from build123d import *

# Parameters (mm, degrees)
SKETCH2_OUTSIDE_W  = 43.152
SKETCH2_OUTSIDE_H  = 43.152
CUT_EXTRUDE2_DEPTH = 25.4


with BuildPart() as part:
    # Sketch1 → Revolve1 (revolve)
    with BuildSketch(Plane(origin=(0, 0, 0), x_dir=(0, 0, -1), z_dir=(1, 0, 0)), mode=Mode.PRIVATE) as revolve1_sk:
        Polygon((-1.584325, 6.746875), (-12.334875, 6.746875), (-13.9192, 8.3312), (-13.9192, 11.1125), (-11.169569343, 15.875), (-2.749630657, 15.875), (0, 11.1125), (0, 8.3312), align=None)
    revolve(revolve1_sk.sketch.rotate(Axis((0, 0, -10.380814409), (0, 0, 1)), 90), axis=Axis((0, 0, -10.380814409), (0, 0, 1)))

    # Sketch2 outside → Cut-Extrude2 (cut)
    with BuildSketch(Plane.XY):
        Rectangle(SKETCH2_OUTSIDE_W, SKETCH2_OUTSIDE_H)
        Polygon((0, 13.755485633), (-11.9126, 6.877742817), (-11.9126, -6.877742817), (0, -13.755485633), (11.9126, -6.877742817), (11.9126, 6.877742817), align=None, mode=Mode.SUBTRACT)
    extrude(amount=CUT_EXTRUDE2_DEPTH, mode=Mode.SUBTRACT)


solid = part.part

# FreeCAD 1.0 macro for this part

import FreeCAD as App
import Part
import Sketcher
Q = App.Units.Quantity


def add_polygon(sketch, points):
    """Adds a closed chain of lines whose ends are joined by coincident constraints."""
    first, n = sketch.GeometryCount, len(points)
    for a, b in zip(points, points[1:] + points[:1]):
        sketch.addGeometry(Part.LineSegment(App.Vector(*a, 0), App.Vector(*b, 0)), False)
    for i in range(n):
        sketch.addConstraint(Sketcher.Constraint("Coincident", first + i, 2, first + (i + 1) % n, 1))

doc = App.newDocument("Part")
params = doc.addObject("Spreadsheet::Sheet", "Params")
for row, (alias, value) in enumerate([
    ("revolution_angle", "360 deg"),
    ("pocket1_length", "1 in"),
], start=1):
    params.set(f"A{row}", alias)
    params.set(f"B{row}", "=" + value)
    params.setAlias(f"B{row}", alias)

body = doc.addObject("PartDesign::Body", "Body")

# Sketch on YZ plane
sketch1 = doc.addObject("Sketcher::SketchObject", "Sketch")
body.addObject(sketch1)
sketch1.AttachmentSupport = (doc.YZ_Plane, [""])
sketch1.MapMode = "FlatFace"
add_polygon(sketch1, [(6.7, 12.3), (6.7, 1.6), (8.3, 0), (11.1, 0), (15.9, 2.7), (15.9, 11.2), (11.1, 13.9), (8.3, 13.9)])  # lines 0-7
sketch1.addConstraint([
    Sketcher.Constraint("Vertical", 0),
    Sketcher.Constraint("Horizontal", 2),
    Sketcher.Constraint("Vertical", 4),
    Sketcher.Constraint("Horizontal", 6),
    Sketcher.Constraint("PointOnObject", 1, 2, -1),
    Sketcher.Constraint("Perpendicular", 1, 7),
    Sketcher.Constraint("Vertical", 2, 2, 5, 2),
    Sketcher.Constraint("Vertical", 1, 2, 6, 2),
    Sketcher.Constraint("Equal", 3, 5),
    Sketcher.Constraint("Equal", 1, 7),
    Sketcher.Constraint("Angle", 3, Q("30 deg")),
    Sketcher.Constraint("DistanceX", 2, 1, 2, 2, Q("0.1095 in")),
    Sketcher.Constraint("DistanceX", -1, 1, 0, 2, Q("0.265625 in")),
    Sketcher.Constraint("DistanceX", -1, 1, 1, 2, Q("0.328 in")),
    Sketcher.Constraint("DistanceX", -1, 1, 3, 2, Q("0.625 in")),
    Sketcher.Constraint("DistanceY", -1, 1, 5, 2, Q("0.548 in")),
])
revolution = doc.addObject("PartDesign::Revolution", "Revolution")
body.addObject(revolution)
revolution.Profile = sketch1
revolution.ReferenceAxis = (sketch1, ["V_Axis"])
revolution.setExpression("Angle", "Params.revolution_angle")

# Sketch on XY plane
sketch2 = doc.addObject("Sketcher::SketchObject", "Sketch001")
body.addObject(sketch2)
sketch2.AttachmentSupport = (doc.XY_Plane, [""])
sketch2.MapMode = "FlatFace"
add_polygon(sketch2, [(-22, 22), (-22, -22), (22, -22), (22, 22)])  # lines 0-3
add_polygon(sketch2, [(-12, 7), (0, 14), (12, 7), (12, -7), (0, -14), (-12, -7)])  # lines 4-9
sketch2.addConstraint([
    Sketcher.Constraint("Vertical", 0),
    Sketcher.Constraint("Horizontal", 1),
    Sketcher.Constraint("Vertical", 2),
    Sketcher.Constraint("Horizontal", 3),
    Sketcher.Constraint("Vertical", 6),
    Sketcher.Constraint("Vertical", 9),
    Sketcher.Constraint("Symmetric", 0, 2, 2, 2, -1, 1),
    Sketcher.Constraint("Symmetric", 4, 2, 7, 2, -1, 1),
    Sketcher.Constraint("Symmetric", 5, 2, 8, 2, -1, 1),
    Sketcher.Constraint("PointOnObject", 4, 2, -2),
    Sketcher.Constraint("Parallel", 4, 7),
    Sketcher.Constraint("Horizontal", 6, 2, 8, 2),
    Sketcher.Constraint("Equal", 3, 0),
    Sketcher.Constraint("Angle", 4, Q("30 deg")),
    Sketcher.Constraint("DistanceX", -1, 1, 5, 2, Q("0.469 in")),
    Sketcher.Constraint("DistanceX", 1, 1, 1, 2, Q("43.152 mm")),
    Sketcher.Constraint("DistanceY", 6, 2, 6, 1, Q("13.755486 mm")),
])
pocket1 = doc.addObject("PartDesign::Pocket", "Pocket")
body.addObject(pocket1)
pocket1.Profile = sketch2
pocket1.setExpression("Length", "Params.pocket1_length")
pocket1.Reversed = True

doc.recompute()
